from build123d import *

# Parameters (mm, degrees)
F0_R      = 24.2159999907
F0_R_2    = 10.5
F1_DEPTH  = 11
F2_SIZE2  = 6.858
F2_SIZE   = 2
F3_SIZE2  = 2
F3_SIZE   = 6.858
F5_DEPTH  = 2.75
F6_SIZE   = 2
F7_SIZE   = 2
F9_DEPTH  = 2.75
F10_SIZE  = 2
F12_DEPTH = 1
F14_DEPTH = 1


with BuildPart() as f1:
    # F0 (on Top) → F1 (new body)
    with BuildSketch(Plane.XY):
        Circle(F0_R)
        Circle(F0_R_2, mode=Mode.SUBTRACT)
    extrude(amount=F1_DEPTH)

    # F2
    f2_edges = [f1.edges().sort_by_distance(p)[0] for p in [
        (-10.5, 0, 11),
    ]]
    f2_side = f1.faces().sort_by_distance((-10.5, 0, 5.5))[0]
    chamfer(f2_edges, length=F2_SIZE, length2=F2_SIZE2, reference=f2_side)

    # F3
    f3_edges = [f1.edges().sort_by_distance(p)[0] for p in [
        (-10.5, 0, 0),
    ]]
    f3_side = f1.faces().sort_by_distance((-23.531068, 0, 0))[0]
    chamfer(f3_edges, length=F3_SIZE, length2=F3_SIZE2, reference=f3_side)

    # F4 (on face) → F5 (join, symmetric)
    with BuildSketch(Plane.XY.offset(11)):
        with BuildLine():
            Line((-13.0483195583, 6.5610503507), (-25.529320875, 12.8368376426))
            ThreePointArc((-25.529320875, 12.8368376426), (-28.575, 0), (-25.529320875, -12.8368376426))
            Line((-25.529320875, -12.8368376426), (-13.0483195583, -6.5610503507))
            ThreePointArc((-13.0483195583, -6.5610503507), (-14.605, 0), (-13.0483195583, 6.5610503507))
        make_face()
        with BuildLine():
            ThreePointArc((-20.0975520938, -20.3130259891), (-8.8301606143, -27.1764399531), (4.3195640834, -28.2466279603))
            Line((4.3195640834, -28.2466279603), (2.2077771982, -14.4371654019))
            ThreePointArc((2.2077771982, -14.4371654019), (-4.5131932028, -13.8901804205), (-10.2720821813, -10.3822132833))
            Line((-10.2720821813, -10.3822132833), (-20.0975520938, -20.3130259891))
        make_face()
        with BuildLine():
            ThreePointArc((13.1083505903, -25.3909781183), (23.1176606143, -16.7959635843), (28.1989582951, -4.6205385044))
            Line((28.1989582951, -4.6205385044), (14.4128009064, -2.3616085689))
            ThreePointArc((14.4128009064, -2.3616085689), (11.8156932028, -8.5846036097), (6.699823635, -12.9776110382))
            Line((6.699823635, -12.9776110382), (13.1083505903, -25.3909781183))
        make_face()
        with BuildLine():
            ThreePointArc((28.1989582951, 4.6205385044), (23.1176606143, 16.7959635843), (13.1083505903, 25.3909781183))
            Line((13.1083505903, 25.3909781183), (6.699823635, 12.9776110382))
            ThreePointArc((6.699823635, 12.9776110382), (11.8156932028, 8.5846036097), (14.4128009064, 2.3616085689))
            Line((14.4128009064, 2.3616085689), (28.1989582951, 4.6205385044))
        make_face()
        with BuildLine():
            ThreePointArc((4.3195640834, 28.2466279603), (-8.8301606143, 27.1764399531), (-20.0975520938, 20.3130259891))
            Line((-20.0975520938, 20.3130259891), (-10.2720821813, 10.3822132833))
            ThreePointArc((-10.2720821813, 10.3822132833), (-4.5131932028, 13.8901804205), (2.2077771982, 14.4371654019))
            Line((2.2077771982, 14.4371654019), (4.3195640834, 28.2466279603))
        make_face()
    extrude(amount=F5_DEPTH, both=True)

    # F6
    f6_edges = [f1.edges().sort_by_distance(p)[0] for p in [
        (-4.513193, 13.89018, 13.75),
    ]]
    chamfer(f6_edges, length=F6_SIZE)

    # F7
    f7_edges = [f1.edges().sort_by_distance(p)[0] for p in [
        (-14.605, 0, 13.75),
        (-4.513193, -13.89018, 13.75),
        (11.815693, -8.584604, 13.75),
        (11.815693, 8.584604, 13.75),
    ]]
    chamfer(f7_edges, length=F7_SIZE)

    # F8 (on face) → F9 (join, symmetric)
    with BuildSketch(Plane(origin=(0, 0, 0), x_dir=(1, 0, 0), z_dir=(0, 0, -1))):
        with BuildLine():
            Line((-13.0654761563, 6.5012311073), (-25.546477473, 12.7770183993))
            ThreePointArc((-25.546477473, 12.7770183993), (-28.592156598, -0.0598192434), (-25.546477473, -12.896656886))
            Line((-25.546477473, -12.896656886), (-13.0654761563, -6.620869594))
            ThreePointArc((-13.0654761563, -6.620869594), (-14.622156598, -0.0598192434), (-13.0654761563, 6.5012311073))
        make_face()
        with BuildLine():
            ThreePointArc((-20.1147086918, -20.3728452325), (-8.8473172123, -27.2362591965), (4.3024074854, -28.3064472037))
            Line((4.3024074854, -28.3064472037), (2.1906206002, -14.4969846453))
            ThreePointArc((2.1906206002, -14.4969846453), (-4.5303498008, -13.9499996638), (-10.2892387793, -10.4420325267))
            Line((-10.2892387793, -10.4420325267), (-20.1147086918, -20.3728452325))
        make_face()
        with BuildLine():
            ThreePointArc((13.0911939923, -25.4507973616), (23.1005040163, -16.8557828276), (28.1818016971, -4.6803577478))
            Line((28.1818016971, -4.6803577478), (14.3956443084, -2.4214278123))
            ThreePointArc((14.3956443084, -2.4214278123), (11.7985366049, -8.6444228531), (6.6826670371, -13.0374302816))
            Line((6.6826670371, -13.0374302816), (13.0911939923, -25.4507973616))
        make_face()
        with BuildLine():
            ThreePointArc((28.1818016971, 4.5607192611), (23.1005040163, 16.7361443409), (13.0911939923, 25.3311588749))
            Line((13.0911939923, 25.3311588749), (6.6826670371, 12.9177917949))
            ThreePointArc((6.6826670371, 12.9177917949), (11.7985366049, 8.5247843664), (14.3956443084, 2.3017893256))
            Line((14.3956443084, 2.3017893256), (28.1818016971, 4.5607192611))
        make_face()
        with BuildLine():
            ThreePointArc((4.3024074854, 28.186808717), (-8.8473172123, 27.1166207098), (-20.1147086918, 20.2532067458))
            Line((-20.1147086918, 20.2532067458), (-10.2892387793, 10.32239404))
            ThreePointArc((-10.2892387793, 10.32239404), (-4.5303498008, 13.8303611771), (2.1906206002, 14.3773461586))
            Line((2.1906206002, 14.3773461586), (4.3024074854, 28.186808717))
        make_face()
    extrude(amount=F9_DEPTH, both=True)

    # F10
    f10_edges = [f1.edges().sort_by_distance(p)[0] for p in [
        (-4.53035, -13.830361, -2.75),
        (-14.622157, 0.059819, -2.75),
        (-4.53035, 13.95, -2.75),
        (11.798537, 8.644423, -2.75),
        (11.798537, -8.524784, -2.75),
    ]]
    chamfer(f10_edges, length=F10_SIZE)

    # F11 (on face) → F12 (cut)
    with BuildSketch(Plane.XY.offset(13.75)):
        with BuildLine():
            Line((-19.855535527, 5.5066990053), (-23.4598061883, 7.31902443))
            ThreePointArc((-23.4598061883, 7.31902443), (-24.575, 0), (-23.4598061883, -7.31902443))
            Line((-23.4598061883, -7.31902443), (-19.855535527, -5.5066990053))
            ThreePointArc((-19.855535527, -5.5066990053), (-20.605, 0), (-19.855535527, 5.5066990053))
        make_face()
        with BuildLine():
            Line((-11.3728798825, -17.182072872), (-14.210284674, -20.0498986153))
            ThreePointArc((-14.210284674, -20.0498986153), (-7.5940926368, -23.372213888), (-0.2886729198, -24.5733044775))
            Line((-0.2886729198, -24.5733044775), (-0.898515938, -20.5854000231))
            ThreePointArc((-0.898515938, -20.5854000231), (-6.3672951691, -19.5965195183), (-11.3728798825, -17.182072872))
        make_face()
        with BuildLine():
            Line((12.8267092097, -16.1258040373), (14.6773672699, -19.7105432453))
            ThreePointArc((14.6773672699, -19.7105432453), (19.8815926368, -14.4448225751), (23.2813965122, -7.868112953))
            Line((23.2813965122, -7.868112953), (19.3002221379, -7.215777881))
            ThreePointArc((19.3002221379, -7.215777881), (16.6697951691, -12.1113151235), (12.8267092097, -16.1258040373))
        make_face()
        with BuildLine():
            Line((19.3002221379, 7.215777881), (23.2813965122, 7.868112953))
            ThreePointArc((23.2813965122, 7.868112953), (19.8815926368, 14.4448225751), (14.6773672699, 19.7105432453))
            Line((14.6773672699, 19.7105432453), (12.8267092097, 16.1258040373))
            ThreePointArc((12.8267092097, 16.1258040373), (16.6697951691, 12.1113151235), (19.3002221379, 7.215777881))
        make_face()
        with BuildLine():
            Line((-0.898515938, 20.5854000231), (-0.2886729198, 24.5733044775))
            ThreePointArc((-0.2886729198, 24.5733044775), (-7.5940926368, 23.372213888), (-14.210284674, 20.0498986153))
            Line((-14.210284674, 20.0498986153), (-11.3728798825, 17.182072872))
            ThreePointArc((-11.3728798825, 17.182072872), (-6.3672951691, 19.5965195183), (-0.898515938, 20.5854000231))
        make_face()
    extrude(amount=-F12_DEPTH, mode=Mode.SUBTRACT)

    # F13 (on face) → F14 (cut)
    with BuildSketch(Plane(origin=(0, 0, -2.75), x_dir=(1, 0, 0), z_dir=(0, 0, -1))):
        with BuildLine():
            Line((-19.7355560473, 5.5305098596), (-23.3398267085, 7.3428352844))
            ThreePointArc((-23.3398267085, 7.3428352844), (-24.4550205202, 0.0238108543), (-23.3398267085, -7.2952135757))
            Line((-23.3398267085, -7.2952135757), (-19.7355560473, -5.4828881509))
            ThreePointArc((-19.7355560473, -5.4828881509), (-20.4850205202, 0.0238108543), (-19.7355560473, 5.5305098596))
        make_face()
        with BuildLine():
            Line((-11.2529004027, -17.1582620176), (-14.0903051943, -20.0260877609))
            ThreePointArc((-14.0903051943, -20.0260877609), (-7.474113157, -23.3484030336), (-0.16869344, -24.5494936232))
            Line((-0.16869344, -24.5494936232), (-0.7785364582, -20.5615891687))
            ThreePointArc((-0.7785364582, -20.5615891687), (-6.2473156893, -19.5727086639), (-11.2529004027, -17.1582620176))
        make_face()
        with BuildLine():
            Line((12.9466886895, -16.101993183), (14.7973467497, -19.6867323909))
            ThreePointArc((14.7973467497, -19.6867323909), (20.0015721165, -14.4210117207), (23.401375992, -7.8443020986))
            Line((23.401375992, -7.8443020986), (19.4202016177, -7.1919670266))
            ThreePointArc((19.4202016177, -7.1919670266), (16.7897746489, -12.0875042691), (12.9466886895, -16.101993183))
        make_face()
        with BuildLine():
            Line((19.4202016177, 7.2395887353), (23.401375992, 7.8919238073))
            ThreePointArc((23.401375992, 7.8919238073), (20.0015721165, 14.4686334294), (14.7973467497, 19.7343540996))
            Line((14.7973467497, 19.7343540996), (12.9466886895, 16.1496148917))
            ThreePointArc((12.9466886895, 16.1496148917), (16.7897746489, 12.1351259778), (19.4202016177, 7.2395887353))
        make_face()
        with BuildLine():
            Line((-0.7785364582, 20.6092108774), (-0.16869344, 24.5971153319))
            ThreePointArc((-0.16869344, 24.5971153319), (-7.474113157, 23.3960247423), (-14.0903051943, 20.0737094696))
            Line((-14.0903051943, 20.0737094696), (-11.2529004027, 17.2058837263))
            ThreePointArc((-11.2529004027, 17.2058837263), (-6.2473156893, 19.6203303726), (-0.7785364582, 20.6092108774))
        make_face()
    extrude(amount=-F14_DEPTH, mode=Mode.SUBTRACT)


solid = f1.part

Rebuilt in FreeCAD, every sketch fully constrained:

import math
import FreeCAD as App
import Part
import Sketcher

V = App.Vector
Q = App.Units.Quantity


def edges_at(feature, points):
    """Names of the edges that pass closest to the given points."""
    edges = feature.Shape.Edges
    near = lambda p: min(range(len(edges)), key=lambda i: edges[i].distToShape(Part.Vertex(*p))[0])
    return sorted({f"Edge{near(p) + 1}" for p in points})

doc = App.newDocument("Part")
body = doc.addObject("PartDesign::Body", "Body")

# Sketch on XY plane
sketch1 = body.newObject("Sketcher::SketchObject", "Sketch")
sketch1.AttachmentSupport = (doc.getObject("XY_Plane"), [""])
sketch1.MapMode = "FlatFace"
sketch1.addGeometry(Part.Circle(V(0, 0, 0), V(0, 0, 1), 24.216), False)
sketch1.addGeometry(Part.Circle(V(0, 0, 0), V(0, 0, 1), 10.5), False)
sketch1.addConstraint(Sketcher.Constraint("Coincident", 0, 3, -1, 1))
sketch1.addConstraint(Sketcher.Constraint("Coincident", 1, 3, -1, 1))
sketch1.addConstraint(Sketcher.Constraint("Diameter", 1, Q("21 mm")))
sketch1.addConstraint(Sketcher.Constraint("Diameter", 0, Q("48.432 mm")))
pad1 = body.newObject("PartDesign::Pad", "Pad")
pad1.Profile = sketch1
pad1.Length = 11
doc.recompute()

chamfer = body.newObject("PartDesign::Chamfer", "Chamfer")
chamfer.Base = (pad1, edges_at(pad1, [(-10.5, 0, 11)]))
chamfer.ChamferType = "Two distances"
chamfer.Size = 2
chamfer.Size2 = 6.858
doc.recompute()

chamfer2 = body.newObject("PartDesign::Chamfer", "Chamfer001")
chamfer2.Base = (chamfer, edges_at(chamfer, [(-10.5, 0, 0)]))
chamfer2.ChamferType = "Two distances"
chamfer2.Size = 6.858
chamfer2.Size2 = 2
chamfer2.FlipDirection = True

# Sketch on XY plane
sketch2 = body.newObject("Sketcher::SketchObject", "Sketch001")
sketch2.AttachmentSupport = (doc.getObject("XY_Plane"), [""])
sketch2.MapMode = "FlatFace"
sketch2.AttachmentOffset = App.Placement(V(0, 0, 11), App.Rotation())
sketch2.addGeometry(Part.LineSegment(V(-13.04832, 6.56105, 0), V(-25.529321, 12.836838, 0)), False)
sketch2.addGeometry(Part.ArcOfCircle(Part.Circle(V(0, 0, 0), V(0, 0, 1), 28.575), math.radians(153.305505), math.radians(206.694495)), False)
sketch2.addGeometry(Part.LineSegment(V(-25.529321, -12.836838, 0), V(-13.04832, -6.56105, 0)), False)
sketch2.addGeometry(Part.ArcOfCircle(Part.Circle(V(0, 0, 0), V(0, 0, 1), 14.605), math.radians(153.305505), math.radians(206.694495)), False)
sketch2.addGeometry(Part.ArcOfCircle(Part.Circle(V(0, 0, 0), V(0, 0, 1), 28.575), math.radians(-134.694495), math.radians(-81.305505)), False)
sketch2.addGeometry(Part.LineSegment(V(4.319564, -28.246628, 0), V(2.207777, -14.437165, 0)), False)
sketch2.addGeometry(Part.ArcOfCircle(Part.Circle(V(0, 0, 0), V(0, 0, 1), 14.605), math.radians(-134.694495), math.radians(-81.305505)), False)
sketch2.addGeometry(Part.LineSegment(V(-10.272082, -10.382213, 0), V(-20.097552, -20.313026, 0)), False)
sketch2.addGeometry(Part.ArcOfCircle(Part.Circle(V(0, 0, 0), V(0, 0, 1), 28.575), math.radians(-62.694495), math.radians(-9.305505)), False)
sketch2.addGeometry(Part.LineSegment(V(28.198958, -4.620539, 0), V(14.412801, -2.361609, 0)), False)
sketch2.addGeometry(Part.ArcOfCircle(Part.Circle(V(0, 0, 0), V(0, 0, 1), 14.605), math.radians(-62.694495), math.radians(-9.305505)), False)
sketch2.addGeometry(Part.LineSegment(V(6.699824, -12.977611, 0), V(13.108351, -25.390978, 0)), False)
sketch2.addGeometry(Part.ArcOfCircle(Part.Circle(V(0, 0, 0), V(0, 0, 1), 28.575), math.radians(9.305505), math.radians(62.694495)), False)
sketch2.addGeometry(Part.LineSegment(V(13.108351, 25.390978, 0), V(6.699824, 12.977611, 0)), False)
sketch2.addGeometry(Part.ArcOfCircle(Part.Circle(V(0, 0, 0), V(0, 0, 1), 14.605), math.radians(9.305505), math.radians(62.694495)), False)
sketch2.addGeometry(Part.LineSegment(V(14.412801, 2.361609, 0), V(28.198958, 4.620539, 0)), False)
sketch2.addGeometry(Part.ArcOfCircle(Part.Circle(V(0, 0, 0), V(0, 0, 1), 28.575), math.radians(81.305505), math.radians(134.694495)), False)
sketch2.addGeometry(Part.LineSegment(V(-20.097552, 20.313026, 0), V(-10.272082, 10.382213, 0)), False)
sketch2.addGeometry(Part.ArcOfCircle(Part.Circle(V(0, 0, 0), V(0, 0, 1), 14.605), math.radians(81.305505), math.radians(134.694495)), False)
sketch2.addGeometry(Part.LineSegment(V(2.207777, 14.437165, 0), V(4.319564, 28.246628, 0)), False)
sketch2.addConstraint(Sketcher.Constraint("Coincident", 0, 2, 1, 1))
sketch2.addConstraint(Sketcher.Constraint("Coincident", 1, 2, 2, 1))
sketch2.addConstraint(Sketcher.Constraint("Coincident", 2, 2, 3, 2))
sketch2.addConstraint(Sketcher.Constraint("Coincident", 3, 1, 0, 1))
sketch2.addConstraint(Sketcher.Constraint("Coincident", 4, 2, 5, 1))
sketch2.addConstraint(Sketcher.Constraint("Coincident", 5, 2, 6, 2))
sketch2.addConstraint(Sketcher.Constraint("Coincident", 6, 1, 7, 1))
sketch2.addConstraint(Sketcher.Constraint("Coincident", 7, 2, 4, 1))
sketch2.addConstraint(Sketcher.Constraint("Coincident", 8, 2, 9, 1))
sketch2.addConstraint(Sketcher.Constraint("Coincident", 9, 2, 10, 2))
sketch2.addConstraint(Sketcher.Constraint("Coincident", 10, 1, 11, 1))
sketch2.addConstraint(Sketcher.Constraint("Coincident", 11, 2, 8, 1))
sketch2.addConstraint(Sketcher.Constraint("Coincident", 12, 2, 13, 1))
sketch2.addConstraint(Sketcher.Constraint("Coincident", 13, 2, 14, 2))
sketch2.addConstraint(Sketcher.Constraint("Coincident", 14, 1, 15, 1))
sketch2.addConstraint(Sketcher.Constraint("Coincident", 15, 2, 12, 1))
sketch2.addConstraint(Sketcher.Constraint("Coincident", 16, 2, 17, 1))
sketch2.addConstraint(Sketcher.Constraint("Coincident", 17, 2, 18, 2))
sketch2.addConstraint(Sketcher.Constraint("Coincident", 18, 1, 19, 1))
sketch2.addConstraint(Sketcher.Constraint("Coincident", 19, 2, 16, 1))
sketch2.addConstraint(Sketcher.Constraint("Coincident", 1, 3, -1, 1))
sketch2.addConstraint(Sketcher.Constraint("Coincident", 3, 3, -1, 1))
sketch2.addConstraint(Sketcher.Constraint("Coincident", 4, 3, -1, 1))
sketch2.addConstraint(Sketcher.Constraint("Coincident", 6, 3, -1, 1))
sketch2.addConstraint(Sketcher.Constraint("Coincident", 8, 3, -1, 1))
sketch2.addConstraint(Sketcher.Constraint("Coincident", 10, 3, -1, 1))
sketch2.addConstraint(Sketcher.Constraint("Coincident", 12, 3, -1, 1))
sketch2.addConstraint(Sketcher.Constraint("Coincident", 14, 3, -1, 1))
sketch2.addConstraint(Sketcher.Constraint("Coincident", 16, 3, -1, 1))
sketch2.addConstraint(Sketcher.Constraint("Coincident", 18, 3, -1, 1))
sketch2.addConstraint(Sketcher.Constraint("Equal", 1, 4))
sketch2.addConstraint(Sketcher.Constraint("Equal", 3, 6))
sketch2.addConstraint(Sketcher.Constraint("Equal", 4, 8))
sketch2.addConstraint(Sketcher.Constraint("Equal", 6, 10))
sketch2.addConstraint(Sketcher.Constraint("Equal", 8, 12))
sketch2.addConstraint(Sketcher.Constraint("Equal", 10, 14))
sketch2.addConstraint(Sketcher.Constraint("Equal", 12, 16))
sketch2.addConstraint(Sketcher.Constraint("Equal", 14, 18))
sketch2.addConstraint(Sketcher.Constraint("Vertical", 0, 2, 1, 2))
sketch2.addConstraint(Sketcher.Constraint("Vertical", 2, 2, 3, 1))
sketch2.addConstraint(Sketcher.Constraint("Vertical", 11, 2, 12, 2))
sketch2.addConstraint(Sketcher.Constraint("Vertical", 10, 1, 13, 2))
sketch2.addConstraint(Sketcher.Constraint("Vertical", 9, 2, 14, 1))
sketch2.addConstraint(Sketcher.Constraint("Vertical", 8, 2, 15, 2))
sketch2.addConstraint(Sketcher.Constraint("Vertical", 7, 2, 16, 2))
sketch2.addConstraint(Sketcher.Constraint("Vertical", 6, 1, 17, 2))
sketch2.addConstraint(Sketcher.Constraint("Vertical", 5, 2, 18, 1))
sketch2.addConstraint(Sketcher.Constraint("Vertical", 4, 2, 19, 2))
sketch2.addConstraint(Sketcher.Constraint("Radius", 1, Q("28.575 mm")))
sketch2.addConstraint(Sketcher.Constraint("Radius", 3, Q("14.605 mm")))
sketch2.addConstraint(Sketcher.Constraint("DistanceX", 1, 2, 2, 2, Q("12.481001 mm")))
sketch2.addConstraint(Sketcher.Constraint("DistanceX", -1, 1, 9, 2, Q("14.412801 mm")))
sketch2.addConstraint(Sketcher.Constraint("DistanceY", 2, 2, 3, 1, Q("13.122101 mm")))
sketch2.addConstraint(Sketcher.Constraint("DistanceY", 4, 2, 7, 2, Q("7.933602 mm")))
sketch2.addConstraint(Sketcher.Constraint("DistanceX", -1, 1, 8, 2, Q("28.198958 mm")))
sketch2.addConstraint(Sketcher.Constraint("DistanceY", 10, 1, -1, 1, Q("12.977611 mm")))
sketch2.addConstraint(Sketcher.Constraint("DistanceX", -1, 1, 11, 2, Q("13.108351 mm")))
sketch2.addConstraint(Sketcher.Constraint("DistanceX", 6, 1, 5, 2, Q("12.479859 mm")))
sketch2.addConstraint(Sketcher.Constraint("DistanceX", 1, 2, 7, 2, Q("5.431769 mm")))
sketch2.addConstraint(Sketcher.Constraint("DistanceX", 7, 2, 6, 1, Q("9.82547 mm")))
pad2 = body.newObject("PartDesign::Pad", "Pad001")
pad2.Profile = sketch2
pad2.Length = 5.5
pad2.Midplane = True
doc.recompute()

chamfer3 = body.newObject("PartDesign::Chamfer", "Chamfer002")
chamfer3.Base = (pad2, edges_at(pad2, [(-4.513, 13.89, 13.75)]))
chamfer3.Size = 2
doc.recompute()

chamfer4 = body.newObject("PartDesign::Chamfer", "Chamfer003")
chamfer4.Base = (chamfer3, edges_at(chamfer3, [
    (-14.605, 0, 13.75),
    (-4.513, -13.89, 13.75),
    (11.816, -8.585, 13.75),
    (11.816, 8.585, 13.75),
]))
chamfer4.Size = 2

# Sketch on XY plane
sketch3 = body.newObject("Sketcher::SketchObject", "Sketch002")
sketch3.AttachmentSupport = (doc.getObject("XY_Plane"), [""])
sketch3.MapMode = "FlatFace"
sketch3.addGeometry(Part.LineSegment(V(-13.065476, -6.501231, 0), V(-25.546477, -12.777018, 0)), False)
sketch3.addGeometry(Part.ArcOfCircle(Part.Circle(V(-0.017157, 0.059819, 0), V(0, 0, 1), 28.575), math.radians(153.305505), math.radians(206.694495)), False)
sketch3.addGeometry(Part.LineSegment(V(-25.546477, 12.896657, 0), V(-13.065476, 6.62087, 0)), False)
sketch3.addGeometry(Part.ArcOfCircle(Part.Circle(V(-0.017157, 0.059819, 0), V(0, 0, 1), 14.605), math.radians(153.305505), math.radians(206.694495)), False)
sketch3.addGeometry(Part.ArcOfCircle(Part.Circle(V(-0.017157, 0.059819, 0), V(0, 0, 1), 28.575), math.radians(81.305505), math.radians(134.694495)), False)
sketch3.addGeometry(Part.LineSegment(V(4.302407, 28.306447, 0), V(2.190621, 14.496985, 0)), False)
sketch3.addGeometry(Part.ArcOfCircle(Part.Circle(V(-0.017157, 0.059819, 0), V(0, 0, 1), 14.605), math.radians(81.305505), math.radians(134.694495)), False)
sketch3.addGeometry(Part.LineSegment(V(-10.289239, 10.442033, 0), V(-20.114709, 20.372845, 0)), False)
sketch3.addGeometry(Part.ArcOfCircle(Part.Circle(V(-0.017157, 0.059819, 0), V(0, 0, 1), 28.575), math.radians(9.305505), math.radians(62.694495)), False)
sketch3.addGeometry(Part.LineSegment(V(28.181802, 4.680358, 0), V(14.395644, 2.421428, 0)), False)
sketch3.addGeometry(Part.ArcOfCircle(Part.Circle(V(-0.017157, 0.059819, 0), V(0, 0, 1), 14.605), math.radians(9.305505), math.radians(62.694495)), False)
sketch3.addGeometry(Part.LineSegment(V(6.682667, 13.03743, 0), V(13.091194, 25.450797, 0)), False)
sketch3.addGeometry(Part.ArcOfCircle(Part.Circle(V(-0.017157, 0.059819, 0), V(0, 0, 1), 28.575), math.radians(-62.694495), math.radians(-9.305505)), False)
sketch3.addGeometry(Part.LineSegment(V(13.091194, -25.331159, 0), V(6.682667, -12.917792, 0)), False)
sketch3.addGeometry(Part.ArcOfCircle(Part.Circle(V(-0.017157, 0.059819, 0), V(0, 0, 1), 14.605), math.radians(-62.694495), math.radians(-9.305505)), False)
sketch3.addGeometry(Part.LineSegment(V(14.395644, -2.301789, 0), V(28.181802, -4.560719, 0)), False)
sketch3.addGeometry(Part.ArcOfCircle(Part.Circle(V(-0.017157, 0.059819, 0), V(0, 0, 1), 28.575), math.radians(-134.694495), math.radians(-81.305505)), False)
sketch3.addGeometry(Part.LineSegment(V(-20.114709, -20.253207, 0), V(-10.289239, -10.322394, 0)), False)
sketch3.addGeometry(Part.ArcOfCircle(Part.Circle(V(-0.017157, 0.059819, 0), V(0, 0, 1), 14.605), math.radians(-134.694495), math.radians(-81.305505)), False)
sketch3.addGeometry(Part.LineSegment(V(2.190621, -14.377346, 0), V(4.302407, -28.186809, 0)), False)
sketch3.addConstraint(Sketcher.Constraint("Coincident", 0, 2, 1, 2))
sketch3.addConstraint(Sketcher.Constraint("Coincident", 1, 1, 2, 1))
sketch3.addConstraint(Sketcher.Constraint("Coincident", 2, 2, 3, 1))
sketch3.addConstraint(Sketcher.Constraint("Coincident", 3, 2, 0, 1))
sketch3.addConstraint(Sketcher.Constraint("Coincident", 4, 1, 5, 1))
sketch3.addConstraint(Sketcher.Constraint("Coincident", 5, 2, 6, 1))
sketch3.addConstraint(Sketcher.Constraint("Coincident", 6, 2, 7, 1))
sketch3.addConstraint(Sketcher.Constraint("Coincident", 7, 2, 4, 2))
sketch3.addConstraint(Sketcher.Constraint("Coincident", 8, 1, 9, 1))
sketch3.addConstraint(Sketcher.Constraint("Coincident", 9, 2, 10, 1))
sketch3.addConstraint(Sketcher.Constraint("Coincident", 10, 2, 11, 1))
sketch3.addConstraint(Sketcher.Constraint("Coincident", 11, 2, 8, 2))
sketch3.addConstraint(Sketcher.Constraint("Coincident", 12, 1, 13, 1))
sketch3.addConstraint(Sketcher.Constraint("Coincident", 13, 2, 14, 1))
sketch3.addConstraint(Sketcher.Constraint("Coincident", 14, 2, 15, 1))
sketch3.addConstraint(Sketcher.Constraint("Coincident", 15, 2, 12, 2))
sketch3.addConstraint(Sketcher.Constraint("Coincident", 16, 1, 17, 1))
sketch3.addConstraint(Sketcher.Constraint("Coincident", 17, 2, 18, 1))
sketch3.addConstraint(Sketcher.Constraint("Coincident", 18, 2, 19, 1))
sketch3.addConstraint(Sketcher.Constraint("Coincident", 19, 2, 16, 2))
sketch3.addConstraint(Sketcher.Constraint("Coincident", 3, 3, 1, 3))
sketch3.addConstraint(Sketcher.Constraint("Coincident", 4, 3, 1, 3))
sketch3.addConstraint(Sketcher.Constraint("Coincident", 6, 3, 1, 3))
sketch3.addConstraint(Sketcher.Constraint("Coincident", 8, 3, 1, 3))
sketch3.addConstraint(Sketcher.Constraint("Coincident", 10, 3, 1, 3))
sketch3.addConstraint(Sketcher.Constraint("Coincident", 12, 3, 1, 3))
sketch3.addConstraint(Sketcher.Constraint("Coincident", 14, 3, 1, 3))
sketch3.addConstraint(Sketcher.Constraint("Coincident", 16, 3, 1, 3))
sketch3.addConstraint(Sketcher.Constraint("Coincident", 18, 3, 1, 3))
sketch3.addConstraint(Sketcher.Constraint("Equal", 1, 4))
sketch3.addConstraint(Sketcher.Constraint("Equal", 3, 6))
sketch3.addConstraint(Sketcher.Constraint("Equal", 4, 8))
sketch3.addConstraint(Sketcher.Constraint("Equal", 6, 10))
sketch3.addConstraint(Sketcher.Constraint("Equal", 8, 12))
sketch3.addConstraint(Sketcher.Constraint("Equal", 10, 14))
sketch3.addConstraint(Sketcher.Constraint("Equal", 12, 16))
sketch3.addConstraint(Sketcher.Constraint("Equal", 14, 18))
sketch3.addConstraint(Sketcher.Constraint("Vertical", 0, 2, 1, 1))
sketch3.addConstraint(Sketcher.Constraint("Vertical", 2, 2, 3, 2))
sketch3.addConstraint(Sketcher.Constraint("Vertical", 11, 2, 12, 1))
sketch3.addConstraint(Sketcher.Constraint("Vertical", 10, 2, 13, 2))
sketch3.addConstraint(Sketcher.Constraint("Vertical", 9, 2, 14, 2))
sketch3.addConstraint(Sketcher.Constraint("Vertical", 8, 1, 15, 2))
sketch3.addConstraint(Sketcher.Constraint("Vertical", 7, 2, 16, 1))
sketch3.addConstraint(Sketcher.Constraint("Vertical", 6, 2, 17, 2))
sketch3.addConstraint(Sketcher.Constraint("Vertical", 5, 2, 18, 2))
sketch3.addConstraint(Sketcher.Constraint("Vertical", 4, 1, 19, 2))
sketch3.addConstraint(Sketcher.Constraint("Radius", 1, Q("28.575 mm")))
sketch3.addConstraint(Sketcher.Constraint("Radius", 3, Q("14.605 mm")))
sketch3.addConstraint(Sketcher.Constraint("DistanceX", 1, 1, 2, 2, Q("12.481001 mm")))
sketch3.addConstraint(Sketcher.Constraint("DistanceX", -1, 1, 8, 1, Q("28.181802 mm")))
sketch3.addConstraint(Sketcher.Constraint("DistanceY", 3, 2, 2, 2, Q("13.122101 mm")))
sketch3.addConstraint(Sketcher.Constraint("DistanceY", 7, 2, 4, 1, Q("7.933602 mm")))
sketch3.addConstraint(Sketcher.Constraint("DistanceX", 4, 3, 9, 2, Q("14.412801 mm")))
sketch3.addConstraint(Sketcher.Constraint("DistanceY", -1, 1, 1, 3, Q("0.059819 mm")))
sketch3.addConstraint(Sketcher.Constraint("DistanceX", -1, 1, 5, 2, Q("2.190621 mm")))
sketch3.addConstraint(Sketcher.Constraint("DistanceX", 6, 2, -1, 1, Q("10.289239 mm")))
sketch3.addConstraint(Sketcher.Constraint("DistanceX", 7, 2, -1, 1, Q("20.114709 mm")))
sketch3.addConstraint(Sketcher.Constraint("DistanceY", -1, 1, 10, 2, Q("13.03743 mm")))
sketch3.addConstraint(Sketcher.Constraint("DistanceY", 12, 1, -1, 1, Q("25.331159 mm")))
sketch3.addConstraint(Sketcher.Constraint("DistanceY", 15, 2, -1, 1, Q("4.560719 mm")))
pad3 = body.newObject("PartDesign::Pad", "Pad002")
pad3.Profile = sketch3
pad3.Length = 5.5
pad3.Midplane = True
doc.recompute()

chamfer5 = body.newObject("PartDesign::Chamfer", "Chamfer004")
chamfer5.Base = (pad3, edges_at(pad3, [
    (-4.53, -13.83, -2.75),
    (-14.622, 0.06, -2.75),
    (-4.53, 13.95, -2.75),
    (11.799, 8.644, -2.75),
    (11.799, -8.525, -2.75),
]))
chamfer5.Size = 2

# Sketch on XY plane
sketch4 = body.newObject("Sketcher::SketchObject", "Sketch003")
sketch4.AttachmentSupport = (doc.getObject("XY_Plane"), [""])
sketch4.MapMode = "FlatFace"
sketch4.AttachmentOffset = App.Placement(V(0, 0, 13.75), App.Rotation())
sketch4.addGeometry(Part.LineSegment(V(-19.855536, 5.506699, 0), V(-23.459806, 7.319024, 0)), False)
sketch4.addGeometry(Part.ArcOfCircle(Part.Circle(V(0, 0, 0), V(0, 0, 1), 24.575), math.radians(162.673047), math.radians(197.326953)), False)
sketch4.addGeometry(Part.LineSegment(V(-23.459806, -7.319024, 0), V(-19.855536, -5.506699, 0)), False)
sketch4.addGeometry(Part.ArcOfCircle(Part.Circle(V(0, 0, 0), V(0, 0, 1), 20.605), math.radians(164.499272), math.radians(195.500728)), False)
sketch4.addGeometry(Part.LineSegment(V(-11.37288, -17.182073, 0), V(-14.210285, -20.049899, 0)), False)
sketch4.addGeometry(Part.ArcOfCircle(Part.Circle(V(0, 0, 0), V(0, 0, 1), 24.575), math.radians(-125.326953), math.radians(-90.673047)), False)
sketch4.addGeometry(Part.LineSegment(V(-0.288673, -24.573304, 0), V(-0.898516, -20.5854, 0)), False)
sketch4.addGeometry(Part.ArcOfCircle(Part.Circle(V(0, 0, 0), V(0, 0, 1), 20.605), math.radians(-123.500728), math.radians(-92.499272)), False)
sketch4.addGeometry(Part.LineSegment(V(12.826709, -16.125804, 0), V(14.677367, -19.710543, 0)), False)
sketch4.addGeometry(Part.ArcOfCircle(Part.Circle(V(0, 0, 0), V(0, 0, 1), 24.575), math.radians(-53.326953), math.radians(-18.673047)), False)
sketch4.addGeometry(Part.LineSegment(V(23.281397, -7.868113, 0), V(19.300222, -7.215778, 0)), False)
sketch4.addGeometry(Part.ArcOfCircle(Part.Circle(V(0, 0, 0), V(0, 0, 1), 20.605), math.radians(-51.500728), math.radians(-20.499272)), False)
sketch4.addGeometry(Part.LineSegment(V(19.300222, 7.215778, 0), V(23.281397, 7.868113, 0)), False)
sketch4.addGeometry(Part.ArcOfCircle(Part.Circle(V(0, 0, 0), V(0, 0, 1), 24.575), math.radians(18.673047), math.radians(53.326953)), False)
sketch4.addGeometry(Part.LineSegment(V(14.677367, 19.710543, 0), V(12.826709, 16.125804, 0)), False)
sketch4.addGeometry(Part.ArcOfCircle(Part.Circle(V(0, 0, 0), V(0, 0, 1), 20.605), math.radians(20.499272), math.radians(51.500728)), False)
sketch4.addGeometry(Part.LineSegment(V(-0.898516, 20.5854, 0), V(-0.288673, 24.573304, 0)), False)
sketch4.addGeometry(Part.ArcOfCircle(Part.Circle(V(0, 0, 0), V(0, 0, 1), 24.575), math.radians(90.673047), math.radians(125.326953)), False)
sketch4.addGeometry(Part.LineSegment(V(-14.210285, 20.049899, 0), V(-11.37288, 17.182073, 0)), False)
sketch4.addGeometry(Part.ArcOfCircle(Part.Circle(V(0, 0, 0), V(0, 0, 1), 20.605), math.radians(92.499272), math.radians(123.500728)), False)
sketch4.addConstraint(Sketcher.Constraint("Coincident", 0, 2, 1, 1))
sketch4.addConstraint(Sketcher.Constraint("Coincident", 1, 2, 2, 1))
sketch4.addConstraint(Sketcher.Constraint("Coincident", 2, 2, 3, 2))
sketch4.addConstraint(Sketcher.Constraint("Coincident", 3, 1, 0, 1))
sketch4.addConstraint(Sketcher.Constraint("Coincident", 4, 2, 5, 1))
sketch4.addConstraint(Sketcher.Constraint("Coincident", 5, 2, 6, 1))
sketch4.addConstraint(Sketcher.Constraint("Coincident", 6, 2, 7, 2))
sketch4.addConstraint(Sketcher.Constraint("Coincident", 7, 1, 4, 1))
sketch4.addConstraint(Sketcher.Constraint("Coincident", 8, 2, 9, 1))
sketch4.addConstraint(Sketcher.Constraint("Coincident", 9, 2, 10, 1))
sketch4.addConstraint(Sketcher.Constraint("Coincident", 10, 2, 11, 2))
sketch4.addConstraint(Sketcher.Constraint("Coincident", 11, 1, 8, 1))
sketch4.addConstraint(Sketcher.Constraint("Coincident", 12, 2, 13, 1))
sketch4.addConstraint(Sketcher.Constraint("Coincident", 13, 2, 14, 1))
sketch4.addConstraint(Sketcher.Constraint("Coincident", 14, 2, 15, 2))
sketch4.addConstraint(Sketcher.Constraint("Coincident", 15, 1, 12, 1))
sketch4.addConstraint(Sketcher.Constraint("Coincident", 16, 2, 17, 1))
sketch4.addConstraint(Sketcher.Constraint("Coincident", 17, 2, 18, 1))
sketch4.addConstraint(Sketcher.Constraint("Coincident", 18, 2, 19, 2))
sketch4.addConstraint(Sketcher.Constraint("Coincident", 19, 1, 16, 1))
sketch4.addConstraint(Sketcher.Constraint("Coincident", 1, 3, -1, 1))
sketch4.addConstraint(Sketcher.Constraint("Coincident", 3, 3, -1, 1))
sketch4.addConstraint(Sketcher.Constraint("Coincident", 5, 3, -1, 1))
sketch4.addConstraint(Sketcher.Constraint("Coincident", 7, 3, -1, 1))
sketch4.addConstraint(Sketcher.Constraint("Coincident", 9, 3, -1, 1))
sketch4.addConstraint(Sketcher.Constraint("Coincident", 11, 3, -1, 1))
sketch4.addConstraint(Sketcher.Constraint("Coincident", 13, 3, -1, 1))
sketch4.addConstraint(Sketcher.Constraint("Coincident", 15, 3, -1, 1))
sketch4.addConstraint(Sketcher.Constraint("Coincident", 17, 3, -1, 1))
sketch4.addConstraint(Sketcher.Constraint("Coincident", 19, 3, -1, 1))
sketch4.addConstraint(Sketcher.Constraint("Equal", 1, 5))
sketch4.addConstraint(Sketcher.Constraint("Equal", 3, 7))
sketch4.addConstraint(Sketcher.Constraint("Equal", 5, 9))
sketch4.addConstraint(Sketcher.Constraint("Equal", 7, 11))
sketch4.addConstraint(Sketcher.Constraint("Equal", 9, 13))
sketch4.addConstraint(Sketcher.Constraint("Equal", 11, 15))
sketch4.addConstraint(Sketcher.Constraint("Equal", 13, 17))
sketch4.addConstraint(Sketcher.Constraint("Equal", 15, 19))
sketch4.addConstraint(Sketcher.Constraint("Vertical", 0, 2, 1, 2))
sketch4.addConstraint(Sketcher.Constraint("Vertical", 2, 2, 3, 1))
sketch4.addConstraint(Sketcher.Constraint("Vertical", 9, 2, 12, 2))
sketch4.addConstraint(Sketcher.Constraint("Vertical", 8, 2, 13, 2))
sketch4.addConstraint(Sketcher.Constraint("Vertical", 11, 1, 14, 2))
sketch4.addConstraint(Sketcher.Constraint("Vertical", 10, 2, 15, 1))
sketch4.addConstraint(Sketcher.Constraint("Vertical", 5, 2, 16, 2))
sketch4.addConstraint(Sketcher.Constraint("Vertical", 4, 2, 17, 2))
sketch4.addConstraint(Sketcher.Constraint("Vertical", 7, 1, 18, 2))
sketch4.addConstraint(Sketcher.Constraint("Vertical", 6, 2, 19, 1))
sketch4.addConstraint(Sketcher.Constraint("Equal", 2, 4))
sketch4.addConstraint(Sketcher.Constraint("Equal", 4, 6))
sketch4.addConstraint(Sketcher.Constraint("Equal", 6, 8))
sketch4.addConstraint(Sketcher.Constraint("Equal", 8, 10))
sketch4.addConstraint(Sketcher.Constraint("Radius", 1, Q("24.575 mm")))
sketch4.addConstraint(Sketcher.Constraint("Radius", 3, Q("20.605 mm")))
sketch4.addConstraint(Sketcher.Constraint("DistanceY", 2, 2, -1, 1, Q("5.506699 mm")))
sketch4.addConstraint(Sketcher.Constraint("DistanceY", 4, 2, -1, 1, Q("20.049899 mm")))
sketch4.addConstraint(Sketcher.Constraint("DistanceY", 6, 2, -1, 1, Q("20.5854 mm")))
sketch4.addConstraint(Sketcher.Constraint("DistanceY", 5, 2, 11, 1, Q("8.4475 mm")))
sketch4.addConstraint(Sketcher.Constraint("DistanceX", 7, 1, -1, 1, Q("11.37288 mm")))
sketch4.addConstraint(Sketcher.Constraint("DistanceX", 8, 2, 9, 2, Q("8.604029 mm")))
pocket1 = body.newObject("PartDesign::Pocket", "Pocket")
pocket1.Profile = sketch4
pocket1.Length = 1

# Sketch on XY plane
sketch5 = body.newObject("Sketcher::SketchObject", "Sketch004")
sketch5.AttachmentSupport = (doc.getObject("XY_Plane"), [""])
sketch5.MapMode = "FlatFace"
sketch5.AttachmentOffset = App.Placement(V(0, 0, -2.75), App.Rotation())
sketch5.addGeometry(Part.LineSegment(V(-19.735556, -5.53051, 0), V(-23.339827, -7.342835, 0)), False)
sketch5.addGeometry(Part.ArcOfCircle(Part.Circle(V(0.119979, -0.023811, 0), V(0, 0, 1), 24.575), math.radians(162.673047), math.radians(197.326953)), False)
sketch5.addGeometry(Part.LineSegment(V(-23.339827, 7.295214, 0), V(-19.735556, 5.482888, 0)), False)
sketch5.addGeometry(Part.ArcOfCircle(Part.Circle(V(0.119979, -0.023811, 0), V(0, 0, 1), 20.605), math.radians(164.499272), math.radians(195.500728)), False)
sketch5.addGeometry(Part.LineSegment(V(-11.2529, 17.158262, 0), V(-14.090305, 20.026088, 0)), False)
sketch5.addGeometry(Part.ArcOfCircle(Part.Circle(V(0.119979, -0.023811, 0), V(0, 0, 1), 24.575), math.radians(90.673047), math.radians(125.326953)), False)
sketch5.addGeometry(Part.LineSegment(V(-0.168693, 24.549494, 0), V(-0.778536, 20.561589, 0)), False)
sketch5.addGeometry(Part.ArcOfCircle(Part.Circle(V(0.119979, -0.023811, 0), V(0, 0, 1), 20.605), math.radians(92.499272), math.radians(123.500728)), False)
sketch5.addGeometry(Part.LineSegment(V(12.946689, 16.101993, 0), V(14.797347, 19.686732, 0)), False)
sketch5.addGeometry(Part.ArcOfCircle(Part.Circle(V(0.119979, -0.023811, 0), V(0, 0, 1), 24.575), math.radians(18.673047), math.radians(53.326953)), False)
sketch5.addGeometry(Part.LineSegment(V(23.401376, 7.844302, 0), V(19.420202, 7.191967, 0)), False)
sketch5.addGeometry(Part.ArcOfCircle(Part.Circle(V(0.119979, -0.023811, 0), V(0, 0, 1), 20.605), math.radians(20.499272), math.radians(51.500728)), False)
sketch5.addGeometry(Part.LineSegment(V(19.420202, -7.239589, 0), V(23.401376, -7.891924, 0)), False)
sketch5.addGeometry(Part.ArcOfCircle(Part.Circle(V(0.119979, -0.023811, 0), V(0, 0, 1), 24.575), math.radians(-53.326953), math.radians(-18.673047)), False)
sketch5.addGeometry(Part.LineSegment(V(14.797347, -19.734354, 0), V(12.946689, -16.149615, 0)), False)
sketch5.addGeometry(Part.ArcOfCircle(Part.Circle(V(0.119979, -0.023811, 0), V(0, 0, 1), 20.605), math.radians(-51.500728), math.radians(-20.499272)), False)
sketch5.addGeometry(Part.LineSegment(V(-0.778536, -20.609211, 0), V(-0.168693, -24.597115, 0)), False)
sketch5.addGeometry(Part.ArcOfCircle(Part.Circle(V(0.119979, -0.023811, 0), V(0, 0, 1), 24.575), math.radians(-125.326953), math.radians(-90.673047)), False)
sketch5.addGeometry(Part.LineSegment(V(-14.090305, -20.073709, 0), V(-11.2529, -17.205884, 0)), False)
sketch5.addGeometry(Part.ArcOfCircle(Part.Circle(V(0.119979, -0.023811, 0), V(0, 0, 1), 20.605), math.radians(-123.500728), math.radians(-92.499272)), False)
sketch5.addConstraint(Sketcher.Constraint("Coincident", 0, 2, 1, 2))
sketch5.addConstraint(Sketcher.Constraint("Coincident", 1, 1, 2, 1))
sketch5.addConstraint(Sketcher.Constraint("Coincident", 2, 2, 3, 1))
sketch5.addConstraint(Sketcher.Constraint("Coincident", 3, 2, 0, 1))
sketch5.addConstraint(Sketcher.Constraint("Coincident", 4, 2, 5, 2))
sketch5.addConstraint(Sketcher.Constraint("Coincident", 5, 1, 6, 1))
sketch5.addConstraint(Sketcher.Constraint("Coincident", 6, 2, 7, 1))
sketch5.addConstraint(Sketcher.Constraint("Coincident", 7, 2, 4, 1))
sketch5.addConstraint(Sketcher.Constraint("Coincident", 8, 2, 9, 2))
sketch5.addConstraint(Sketcher.Constraint("Coincident", 9, 1, 10, 1))
sketch5.addConstraint(Sketcher.Constraint("Coincident", 10, 2, 11, 1))
sketch5.addConstraint(Sketcher.Constraint("Coincident", 11, 2, 8, 1))
sketch5.addConstraint(Sketcher.Constraint("Coincident", 12, 2, 13, 2))
sketch5.addConstraint(Sketcher.Constraint("Coincident", 13, 1, 14, 1))
sketch5.addConstraint(Sketcher.Constraint("Coincident", 14, 2, 15, 1))
sketch5.addConstraint(Sketcher.Constraint("Coincident", 15, 2, 12, 1))
sketch5.addConstraint(Sketcher.Constraint("Coincident", 16, 2, 17, 2))
sketch5.addConstraint(Sketcher.Constraint("Coincident", 17, 1, 18, 1))
sketch5.addConstraint(Sketcher.Constraint("Coincident", 18, 2, 19, 1))
sketch5.addConstraint(Sketcher.Constraint("Coincident", 19, 2, 16, 1))
sketch5.addConstraint(Sketcher.Constraint("Coincident", 3, 3, 1, 3))
sketch5.addConstraint(Sketcher.Constraint("Coincident", 5, 3, 1, 3))
sketch5.addConstraint(Sketcher.Constraint("Coincident", 7, 3, 1, 3))
sketch5.addConstraint(Sketcher.Constraint("Coincident", 9, 3, 1, 3))
sketch5.addConstraint(Sketcher.Constraint("Coincident", 11, 3, 1, 3))
sketch5.addConstraint(Sketcher.Constraint("Coincident", 13, 3, 1, 3))
sketch5.addConstraint(Sketcher.Constraint("Coincident", 15, 3, 1, 3))
sketch5.addConstraint(Sketcher.Constraint("Coincident", 17, 3, 1, 3))
sketch5.addConstraint(Sketcher.Constraint("Coincident", 19, 3, 1, 3))
sketch5.addConstraint(Sketcher.Constraint("Equal", 1, 5))
sketch5.addConstraint(Sketcher.Constraint("Equal", 3, 7))
sketch5.addConstraint(Sketcher.Constraint("Equal", 5, 9))
sketch5.addConstraint(Sketcher.Constraint("Equal", 7, 11))
sketch5.addConstraint(Sketcher.Constraint("Equal", 9, 13))
sketch5.addConstraint(Sketcher.Constraint("Equal", 11, 15))
sketch5.addConstraint(Sketcher.Constraint("Equal", 13, 17))
sketch5.addConstraint(Sketcher.Constraint("Equal", 15, 19))
sketch5.addConstraint(Sketcher.Constraint("Vertical", 0, 2, 1, 1))
sketch5.addConstraint(Sketcher.Constraint("Vertical", 2, 2, 3, 2))
sketch5.addConstraint(Sketcher.Constraint("Vertical", 9, 1, 12, 2))
sketch5.addConstraint(Sketcher.Constraint("Vertical", 8, 2, 13, 1))
sketch5.addConstraint(Sketcher.Constraint("Vertical", 11, 2, 14, 2))
sketch5.addConstraint(Sketcher.Constraint("Vertical", 10, 2, 15, 2))
sketch5.addConstraint(Sketcher.Constraint("Vertical", 5, 1, 16, 2))
sketch5.addConstraint(Sketcher.Constraint("Vertical", 4, 2, 17, 1))
sketch5.addConstraint(Sketcher.Constraint("Vertical", 7, 2, 18, 2))
sketch5.addConstraint(Sketcher.Constraint("Vertical", 6, 2, 19, 2))
sketch5.addConstraint(Sketcher.Constraint("Equal", 2, 4))
sketch5.addConstraint(Sketcher.Constraint("Equal", 4, 6))
sketch5.addConstraint(Sketcher.Constraint("Equal", 6, 8))
sketch5.addConstraint(Sketcher.Constraint("Equal", 8, 10))
sketch5.addConstraint(Sketcher.Constraint("Radius", 1, Q("24.575 mm")))
sketch5.addConstraint(Sketcher.Constraint("Radius", 3, Q("20.605 mm")))
sketch5.addConstraint(Sketcher.Constraint("DistanceX", 7, 2, -1, 1, Q("11.2529 mm")))
sketch5.addConstraint(Sketcher.Constraint("DistanceX", -1, 1, 10, 2, Q("19.420202 mm")))
sketch5.addConstraint(Sketcher.Constraint("DistanceY", 13, 3, 2, 2, Q("5.506699 mm")))
sketch5.addConstraint(Sketcher.Constraint("DistanceY", 2, 2, 4, 2, Q("14.5432 mm")))
sketch5.addConstraint(Sketcher.Constraint("DistanceY", 4, 2, 6, 2, Q("0.535501 mm")))
sketch5.addConstraint(Sketcher.Constraint("DistanceY", 11, 2, 5, 1, Q("8.4475 mm")))
sketch5.addConstraint(Sketcher.Constraint("DistanceX", -1, 1, 1, 3, Q("0.119979 mm")))
sketch5.addConstraint(Sketcher.Constraint("DistanceY", 1, 3, -1, 1, Q("0.023811 mm")))
pocket2 = body.newObject("PartDesign::Pocket", "Pocket001")
pocket2.Profile = sketch5
pocket2.Length = 1
pocket2.Reversed = True

doc.recompute()
